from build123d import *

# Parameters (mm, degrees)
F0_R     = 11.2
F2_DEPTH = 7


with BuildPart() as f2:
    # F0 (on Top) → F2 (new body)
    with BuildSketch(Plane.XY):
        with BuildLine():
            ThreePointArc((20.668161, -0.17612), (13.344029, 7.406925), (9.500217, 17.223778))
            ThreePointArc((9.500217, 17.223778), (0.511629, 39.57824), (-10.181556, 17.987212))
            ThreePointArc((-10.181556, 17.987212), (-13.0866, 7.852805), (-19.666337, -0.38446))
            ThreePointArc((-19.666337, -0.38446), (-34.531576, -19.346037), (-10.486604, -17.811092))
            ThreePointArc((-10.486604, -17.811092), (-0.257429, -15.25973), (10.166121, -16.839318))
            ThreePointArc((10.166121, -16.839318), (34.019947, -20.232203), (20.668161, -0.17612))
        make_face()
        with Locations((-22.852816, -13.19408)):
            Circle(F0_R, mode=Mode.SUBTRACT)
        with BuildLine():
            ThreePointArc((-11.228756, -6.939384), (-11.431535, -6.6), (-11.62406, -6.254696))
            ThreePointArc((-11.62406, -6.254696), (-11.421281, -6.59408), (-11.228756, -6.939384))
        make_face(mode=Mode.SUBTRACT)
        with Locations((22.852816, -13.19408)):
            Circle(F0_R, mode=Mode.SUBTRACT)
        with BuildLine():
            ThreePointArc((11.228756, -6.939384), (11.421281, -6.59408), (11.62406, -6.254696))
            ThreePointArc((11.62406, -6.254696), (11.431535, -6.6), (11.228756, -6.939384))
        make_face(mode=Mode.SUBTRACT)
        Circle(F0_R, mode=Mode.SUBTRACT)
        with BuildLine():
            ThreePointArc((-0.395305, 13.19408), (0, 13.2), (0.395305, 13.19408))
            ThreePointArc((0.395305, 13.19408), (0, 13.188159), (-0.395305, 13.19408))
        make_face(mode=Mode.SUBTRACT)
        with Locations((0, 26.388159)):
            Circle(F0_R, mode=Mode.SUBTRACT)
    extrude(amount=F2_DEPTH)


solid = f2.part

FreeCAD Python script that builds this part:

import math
import FreeCAD as App
import Part
import Sketcher
Q = App.Units.Quantity

doc = App.newDocument("Part")
params = doc.addObject("Spreadsheet::Sheet", "Params")
for row, (alias, value) in enumerate([
    ("sketch1_diameter", "22.4 mm"),
    ("sketch1_radius", "13.2 mm"),
    ("pad1_length", "7 mm"),
], start=1):
    params.set(f"A{row}", alias)
    params.set(f"B{row}", "=" + value)
    params.setAlias(f"B{row}", alias)

body = doc.addObject("PartDesign::Body", "Body")

# Sketch on XY plane
sketch1 = body.newObject("Sketcher::SketchObject", "Sketch")
sketch1.AttachmentSupport = (doc.getObject("XY_Plane"), [""])
sketch1.MapMode = "FlatFace"
sketch1.addGeometry(Part.ArcOfCircle(Part.Circle(App.Vector(35.961852, 21.92394, 0), App.Vector(0, 0, 1), 26.875819), math.radians(-169.928067), math.radians(-124.684022)), False)
sketch1.addGeometry(Part.ArcOfCircle(Part.Circle(App.Vector(0, 26.388159, 0), App.Vector(0, 0, 1), 13.2), math.radians(-43.969177), math.radians(219.526526)), False)
sketch1.addGeometry(Part.ArcOfCircle(Part.Circle(App.Vector(-36.96762, 20.181909, 0), App.Vector(0, 0, 1), 26.875825), math.radians(-49.92806), math.radians(-4.684026)), False)
sketch1.addGeometry(Part.ArcOfCircle(Part.Circle(App.Vector(-22.852816, -13.19408, 0), App.Vector(0, 0, 1), 13.2), math.radians(76.030819), math.radians(339.526529)), False)
sketch1.addGeometry(Part.ArcOfCircle(Part.Circle(App.Vector(1.005763, -42.105842, 0), App.Vector(0, 0, 1), 26.875815), math.radians(70.071929), math.radians(115.315981)), False)
sketch1.addGeometry(Part.ArcOfCircle(Part.Circle(App.Vector(22.852816, -13.19408, 0), App.Vector(0, 0, 1), 13.2), math.radians(-163.969178), math.radians(99.526524)), False)
sketch1.addGeometry(Part.Circle(App.Vector(-22.852816, -13.19408, 0), App.Vector(0, 0, 1), 11.2), False)
sketch1.addGeometry(Part.ArcOfCircle(Part.Circle(App.Vector(-22.85354, -13.194484, 0), App.Vector(0, 0, 1), 13.200829), math.radians(28.283946), math.radians(31.715953)), False)
sketch1.addGeometry(Part.ArcOfCircle(Part.Circle(App.Vector(0.000724, 0.000404, 0), App.Vector(0, 0, 1), 13.200829), math.radians(-151.716054), math.radians(-148.284047)), False)
sketch1.addGeometry(Part.Circle(App.Vector(22.852816, -13.19408, 0), App.Vector(0, 0, 1), 11.2), False)
sketch1.addGeometry(Part.ArcOfCircle(Part.Circle(App.Vector(-0.000724, 0.000404, 0), App.Vector(0, 0, 1), 13.200829), math.radians(-31.715953), math.radians(-28.283946)), False)
sketch1.addGeometry(Part.ArcOfCircle(Part.Circle(App.Vector(22.85354, -13.194484, 0), App.Vector(0, 0, 1), 13.200829), math.radians(148.284047), math.radians(151.716054)), False)
sketch1.addGeometry(Part.Circle(App.Vector(0, 0, 0), App.Vector(0, 0, 1), 11.2), False)
sketch1.addGeometry(Part.ArcOfCircle(Part.Circle(App.Vector(0, 26.387036, 0), App.Vector(0, 0, 1), 13.198877), math.radians(-91.716259), math.radians(-88.283741)), False)
sketch1.addGeometry(Part.ArcOfCircle(Part.Circle(App.Vector(0, -0.001106, 0), App.Vector(0, 0, 1), 13.201106), math.radians(88.284031), math.radians(91.715969)), False)
sketch1.addGeometry(Part.Circle(App.Vector(0, 26.388159, 0), App.Vector(0, 0, 1), 11.2), False)
sketch1.addConstraint(Sketcher.Constraint("Coincident", 0, 1, 1, 1))
sketch1.addConstraint(Sketcher.Constraint("Coincident", 1, 2, 2, 2))
sketch1.addConstraint(Sketcher.Constraint("Coincident", 2, 1, 3, 1))
sketch1.addConstraint(Sketcher.Constraint("Coincident", 3, 2, 4, 2))
sketch1.addConstraint(Sketcher.Constraint("Coincident", 4, 1, 5, 1))
sketch1.addConstraint(Sketcher.Constraint("Coincident", 5, 2, 0, 2))
sketch1.addConstraint(Sketcher.Constraint("Coincident", 7, 1, 8, 2))
sketch1.addConstraint(Sketcher.Constraint("Coincident", 8, 1, 7, 2))
sketch1.addConstraint(Sketcher.Constraint("Coincident", 10, 1, 11, 2))
sketch1.addConstraint(Sketcher.Constraint("Coincident", 11, 1, 10, 2))
sketch1.addConstraint(Sketcher.Constraint("Coincident", 13, 1, 14, 2))
sketch1.addConstraint(Sketcher.Constraint("Coincident", 14, 1, 13, 2))
sketch1.addConstraint(Sketcher.Constraint("Coincident", 12, 3, -1, 1))
sketch1.addConstraint(Sketcher.Constraint("Coincident", 6, 3, 3, 3))
sketch1.addConstraint(Sketcher.Constraint("Coincident", 9, 3, 5, 3))
sketch1.addConstraint(Sketcher.Constraint("Coincident", 15, 3, 1, 3))
sketch1.addConstraint(Sketcher.Constraint("Equal", 1, 3))
sketch1.addConstraint(Sketcher.Constraint("Equal", 3, 5))
sketch1.addConstraint(Sketcher.Constraint("Equal", 7, 8))
sketch1.addConstraint(Sketcher.Constraint("Equal", 6, 9))
sketch1.addConstraint(Sketcher.Constraint("Equal", 8, 10))
sketch1.addConstraint(Sketcher.Constraint("Equal", 10, 11))
sketch1.addConstraint(Sketcher.Constraint("Equal", 9, 12))
sketch1.addConstraint(Sketcher.Constraint("Equal", 12, 15))
sketch1.addConstraint(Sketcher.Constraint("Symmetric", 3, 3, 5, 3, -2))
sketch1.addConstraint(Sketcher.Constraint("Symmetric", 8, 3, 10, 3, -2))
sketch1.addConstraint(Sketcher.Constraint("Symmetric", 7, 3, 11, 3, -2))
sketch1.addConstraint(Sketcher.Constraint("Symmetric", 13, 1, 14, 1, -2))
sketch1.addConstraint(Sketcher.Constraint("PointOnObject", 1, 3, -2))
sketch1.addConstraint(Sketcher.Constraint("Diameter", 6, Q("22.4 mm")))
sketch1.addConstraint(Sketcher.Constraint("Radius", 1, Q("13.2 mm")))
sketch1.addConstraint(Sketcher.Constraint("Radius", 0, Q("26.875819 mm")))
sketch1.addConstraint(Sketcher.Constraint("Radius", 7, Q("13.200829 mm")))
sketch1.addConstraint(Sketcher.Constraint("Radius", 2, Q("26.875825 mm")))
sketch1.addConstraint(Sketcher.Constraint("Radius", 4, Q("26.875815 mm")))
sketch1.addConstraint(Sketcher.Constraint("Radius", 13, Q("13.198877 mm")))
sketch1.addConstraint(Sketcher.Constraint("Radius", 14, Q("13.201106 mm")))
sketch1.addConstraint(Sketcher.Constraint("DistanceY", 4, 3, 1, 3, Q("68.494001 mm")))
sketch1.addConstraint(Sketcher.Constraint("DistanceY", 8, 1, 10, 3, Q("6.2551 mm")))
sketch1.addConstraint(Sketcher.Constraint("DistanceX", 11, 1, 5, 2, Q("9.044101 mm")))
sketch1.addConstraint(Sketcher.Constraint("DistanceY", -1, 1, 0, 3, Q("21.92394 mm")))
sketch1.addConstraint(Sketcher.Constraint("DistanceY", -1, 1, 1, 3, Q("26.388159 mm")))
sketch1.addConstraint(Sketcher.Constraint("DistanceX", 2, 3, -1, 1, Q("36.96762 mm")))
sketch1.addConstraint(Sketcher.Constraint("DistanceY", -1, 1, 2, 3, Q("20.181909 mm")))
sketch1.addConstraint(Sketcher.Constraint("DistanceY", 3, 3, -1, 1, Q("13.19408 mm")))
sketch1.addConstraint(Sketcher.Constraint("DistanceX", 7, 3, -1, 1, Q("22.85354 mm")))
sketch1.addConstraint(Sketcher.Constraint("DistanceY", 2, 1, -1, 1, Q("0.38446 mm")))
sketch1.addConstraint(Sketcher.Constraint("DistanceY", 3, 2, -1, 1, Q("17.811092 mm")))
sketch1.addConstraint(Sketcher.Constraint("DistanceX", -1, 1, 5, 2, Q("20.668161 mm")))
sketch1.addConstraint(Sketcher.Constraint("DistanceY", -1, 1, 13, 1, Q("13.19408 mm")))
sketch1.addConstraint(Sketcher.Constraint("DistanceY", 4, 3, 7, 3, Q("28.911358 mm")))
sketch1.addConstraint(Sketcher.Constraint("DistanceY", 8, 3, 13, 3, Q("26.386632 mm")))
sketch1.setExpression("Constraints[29]", "Params.sketch1_diameter")
sketch1.setExpression("Constraints[30]", "Params.sketch1_radius")
pad1 = body.newObject("PartDesign::Pad", "Pad")
pad1.Profile = sketch1
pad1.setExpression("Length", "Params.pad1_length")

doc.recompute()
